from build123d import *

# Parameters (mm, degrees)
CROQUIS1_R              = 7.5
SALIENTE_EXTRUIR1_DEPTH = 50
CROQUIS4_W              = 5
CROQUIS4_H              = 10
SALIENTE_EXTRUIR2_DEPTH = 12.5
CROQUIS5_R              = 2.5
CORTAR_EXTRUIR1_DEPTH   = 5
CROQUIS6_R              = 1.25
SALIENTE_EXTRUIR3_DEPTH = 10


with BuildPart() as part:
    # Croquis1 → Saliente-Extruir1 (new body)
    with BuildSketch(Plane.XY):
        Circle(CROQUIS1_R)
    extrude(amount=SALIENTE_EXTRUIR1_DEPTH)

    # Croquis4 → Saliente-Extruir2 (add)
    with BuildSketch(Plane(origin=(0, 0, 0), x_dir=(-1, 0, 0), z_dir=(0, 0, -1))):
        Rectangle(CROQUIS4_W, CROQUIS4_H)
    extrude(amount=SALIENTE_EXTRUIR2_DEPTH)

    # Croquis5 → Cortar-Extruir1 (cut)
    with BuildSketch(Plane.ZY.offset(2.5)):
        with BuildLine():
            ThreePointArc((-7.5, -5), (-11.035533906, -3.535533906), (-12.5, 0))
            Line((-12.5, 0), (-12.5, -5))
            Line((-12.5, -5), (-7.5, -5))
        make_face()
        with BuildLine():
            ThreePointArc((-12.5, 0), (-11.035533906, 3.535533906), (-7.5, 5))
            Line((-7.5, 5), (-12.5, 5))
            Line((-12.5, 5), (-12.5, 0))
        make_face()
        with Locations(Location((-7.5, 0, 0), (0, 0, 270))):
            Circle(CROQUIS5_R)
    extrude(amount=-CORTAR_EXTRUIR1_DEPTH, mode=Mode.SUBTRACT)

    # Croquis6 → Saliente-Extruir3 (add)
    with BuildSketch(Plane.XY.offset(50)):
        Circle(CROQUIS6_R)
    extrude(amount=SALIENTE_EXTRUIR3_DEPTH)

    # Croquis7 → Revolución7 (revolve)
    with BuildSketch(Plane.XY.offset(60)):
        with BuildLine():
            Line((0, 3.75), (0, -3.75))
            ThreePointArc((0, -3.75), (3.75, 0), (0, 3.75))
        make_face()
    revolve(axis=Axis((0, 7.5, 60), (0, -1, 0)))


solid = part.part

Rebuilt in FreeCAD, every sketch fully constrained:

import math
import FreeCAD as App
import Part
import Sketcher

V = App.Vector
Q = App.Units.Quantity


def add_polygon(sketch, points):
    """Adds a closed chain of lines whose ends are joined by coincident constraints."""
    first, n = sketch.GeometryCount, len(points)
    for a, b in zip(points, points[1:] + points[:1]):
        sketch.addGeometry(Part.LineSegment(App.Vector(*a, 0), App.Vector(*b, 0)), False)
    for i in range(n):
        sketch.addConstraint(Sketcher.Constraint("Coincident", first + i, 2, first + (i + 1) % n, 1))

doc = App.newDocument("Part")
body = doc.addObject("PartDesign::Body", "Body")

# Sketch on XY plane
sketch1 = body.newObject("Sketcher::SketchObject", "Sketch")
sketch1.AttachmentSupport = (doc.getObject("XY_Plane"), [""])
sketch1.MapMode = "FlatFace"
sketch1.addGeometry(Part.Circle(V(0, 0, 0), V(0, 0, 1), 8), False)
sketch1.addConstraint([
    Sketcher.Constraint("Coincident", 0, 3, -1, 1),
    Sketcher.Constraint("Diameter", 0, Q("15 mm")),
])
pad1 = body.newObject("PartDesign::Pad", "Pad")
pad1.Profile = sketch1
pad1.Length = 50

# Sketch on XY plane
sketch2 = body.newObject("Sketcher::SketchObject", "Sketch001")
sketch2.AttachmentSupport = (doc.getObject("XY_Plane"), [""])
sketch2.MapMode = "FlatFace"
add_polygon(sketch2, [(2, 5), (2, -5), (-2, -5), (-2, 5)])  # lines 0-3
sketch2.addConstraint([
    Sketcher.Constraint("Vertical", 0),
    Sketcher.Constraint("Horizontal", 1),
    Sketcher.Constraint("Vertical", 2),
    Sketcher.Constraint("Horizontal", 3),
    Sketcher.Constraint("Symmetric", 0, 2, 2, 2, -1, 1),
    Sketcher.Constraint("DistanceX", 1, 2, 1, 1, Q("5 mm")),
    Sketcher.Constraint("DistanceY", 0, 2, 0, 1, Q("10 mm")),
])
pad2 = body.newObject("PartDesign::Pad", "Pad001")
pad2.Profile = sketch2
pad2.Length = 12.5
pad2.Reversed = True

# Sketch on YZ plane
sketch3 = body.newObject("Sketcher::SketchObject", "Sketch002")
sketch3.AttachmentSupport = (doc.getObject("YZ_Plane"), [""])
sketch3.MapMode = "FlatFace"
sketch3.AttachmentOffset = App.Placement(V(0, 0, -2.5), App.Rotation())
sketch3.addGeometry([
    Part.ArcOfCircle(Part.Circle(V(0, -7.5, 0), V(0, 0, 1), 5), math.radians(180), math.radians(270)),  # 0
    Part.LineSegment(V(0, -12.5, 0), V(-5, -12.5, 0)),  # 1
    Part.LineSegment(V(-5, -12.5, 0), V(-5, -7.5, 0)),  # 2
    Part.ArcOfCircle(Part.Circle(V(0, -7.5, 0), V(0, 0, 1), 5), math.radians(-90), math.radians(0)),  # 3
    Part.LineSegment(V(5, -7.5, 0), V(5, -12.5, 0)),  # 4
    Part.LineSegment(V(5, -12.5, 0), V(0, -12.5, 0)),  # 5
    Part.Circle(V(0, -7.5, 0), V(0, 0, 1), 2.5),  # 6
], False)
sketch3.addConstraint([
    Sketcher.Constraint("Tangent", 0, 2, 1, 1),
    Sketcher.Constraint("Coincident", 1, 2, 2, 1),
    Sketcher.Constraint("Tangent", 2, 2, 0, 1),
    Sketcher.Constraint("Tangent", 3, 2, 4, 1),
    Sketcher.Constraint("Coincident", 4, 2, 5, 1),
    Sketcher.Constraint("Tangent", 5, 2, 3, 1),
    Sketcher.Constraint("Horizontal", 1),
    Sketcher.Constraint("Vertical", 2),
    Sketcher.Constraint("Vertical", 4),
    Sketcher.Constraint("Horizontal", 5),
    Sketcher.Constraint("Coincident", 3, 3, 0, 3),
    Sketcher.Constraint("Coincident", 6, 3, 0, 3),
    Sketcher.Constraint("Equal", 0, 3),
    Sketcher.Constraint("PointOnObject", 0, 3, -2),
    Sketcher.Constraint("Diameter", 6, Q("5 mm")),
    Sketcher.Constraint("Radius", 0, Q("5 mm")),
    Sketcher.Constraint("DistanceY", 0, 3, -1, 1, Q("7.5 mm")),
])
pocket1 = body.newObject("PartDesign::Pocket", "Pocket")
pocket1.Profile = sketch3
pocket1.Length = 5
pocket1.Reversed = True

# Sketch on XY plane
sketch4 = body.newObject("Sketcher::SketchObject", "Sketch003")
sketch4.AttachmentSupport = (doc.getObject("XY_Plane"), [""])
sketch4.MapMode = "FlatFace"
sketch4.AttachmentOffset = App.Placement(V(0, 0, 50), App.Rotation())
sketch4.addGeometry(Part.Circle(V(0, 0, 0), V(0, 0, 1), 1.2), False)
sketch4.addConstraint([
    Sketcher.Constraint("Coincident", 0, 3, -1, 1),
    Sketcher.Constraint("Diameter", 0, Q("2.5 mm")),
])
pad3 = body.newObject("PartDesign::Pad", "Pad002")
pad3.Profile = sketch4
pad3.Length = 10

# Sketch on XY plane
sketch5 = body.newObject("Sketcher::SketchObject", "Sketch004")
sketch5.AttachmentSupport = (doc.getObject("XY_Plane"), [""])
sketch5.MapMode = "FlatFace"
sketch5.AttachmentOffset = App.Placement(V(0, 0, 60), App.Rotation())
sketch5.addGeometry([
    Part.LineSegment(V(0, 3.8, 0), V(0, -3.8, 0)),
    Part.ArcOfCircle(Part.Circle(V(0, 0, 0), V(0, 0, 1), 3.8), math.radians(-90), math.radians(90)),
], False)
sketch5.addConstraint([
    Sketcher.Constraint("Coincident", 0, 1, 1, 2),
    Sketcher.Constraint("Coincident", 1, 1, 0, 2),
    Sketcher.Constraint("Vertical", 0),
    Sketcher.Constraint("Coincident", 1, 3, -1, 1),
    Sketcher.Constraint("PointOnObject", 0, 1, -2),
    Sketcher.Constraint("Radius", 1, Q("3.75 mm")),
])
revolution = body.newObject("PartDesign::Revolution", "Revolution")
revolution.Profile = sketch5
revolution.ReferenceAxis = (sketch5, ["V_Axis"])
revolution.Angle = 360

doc.recompute()
